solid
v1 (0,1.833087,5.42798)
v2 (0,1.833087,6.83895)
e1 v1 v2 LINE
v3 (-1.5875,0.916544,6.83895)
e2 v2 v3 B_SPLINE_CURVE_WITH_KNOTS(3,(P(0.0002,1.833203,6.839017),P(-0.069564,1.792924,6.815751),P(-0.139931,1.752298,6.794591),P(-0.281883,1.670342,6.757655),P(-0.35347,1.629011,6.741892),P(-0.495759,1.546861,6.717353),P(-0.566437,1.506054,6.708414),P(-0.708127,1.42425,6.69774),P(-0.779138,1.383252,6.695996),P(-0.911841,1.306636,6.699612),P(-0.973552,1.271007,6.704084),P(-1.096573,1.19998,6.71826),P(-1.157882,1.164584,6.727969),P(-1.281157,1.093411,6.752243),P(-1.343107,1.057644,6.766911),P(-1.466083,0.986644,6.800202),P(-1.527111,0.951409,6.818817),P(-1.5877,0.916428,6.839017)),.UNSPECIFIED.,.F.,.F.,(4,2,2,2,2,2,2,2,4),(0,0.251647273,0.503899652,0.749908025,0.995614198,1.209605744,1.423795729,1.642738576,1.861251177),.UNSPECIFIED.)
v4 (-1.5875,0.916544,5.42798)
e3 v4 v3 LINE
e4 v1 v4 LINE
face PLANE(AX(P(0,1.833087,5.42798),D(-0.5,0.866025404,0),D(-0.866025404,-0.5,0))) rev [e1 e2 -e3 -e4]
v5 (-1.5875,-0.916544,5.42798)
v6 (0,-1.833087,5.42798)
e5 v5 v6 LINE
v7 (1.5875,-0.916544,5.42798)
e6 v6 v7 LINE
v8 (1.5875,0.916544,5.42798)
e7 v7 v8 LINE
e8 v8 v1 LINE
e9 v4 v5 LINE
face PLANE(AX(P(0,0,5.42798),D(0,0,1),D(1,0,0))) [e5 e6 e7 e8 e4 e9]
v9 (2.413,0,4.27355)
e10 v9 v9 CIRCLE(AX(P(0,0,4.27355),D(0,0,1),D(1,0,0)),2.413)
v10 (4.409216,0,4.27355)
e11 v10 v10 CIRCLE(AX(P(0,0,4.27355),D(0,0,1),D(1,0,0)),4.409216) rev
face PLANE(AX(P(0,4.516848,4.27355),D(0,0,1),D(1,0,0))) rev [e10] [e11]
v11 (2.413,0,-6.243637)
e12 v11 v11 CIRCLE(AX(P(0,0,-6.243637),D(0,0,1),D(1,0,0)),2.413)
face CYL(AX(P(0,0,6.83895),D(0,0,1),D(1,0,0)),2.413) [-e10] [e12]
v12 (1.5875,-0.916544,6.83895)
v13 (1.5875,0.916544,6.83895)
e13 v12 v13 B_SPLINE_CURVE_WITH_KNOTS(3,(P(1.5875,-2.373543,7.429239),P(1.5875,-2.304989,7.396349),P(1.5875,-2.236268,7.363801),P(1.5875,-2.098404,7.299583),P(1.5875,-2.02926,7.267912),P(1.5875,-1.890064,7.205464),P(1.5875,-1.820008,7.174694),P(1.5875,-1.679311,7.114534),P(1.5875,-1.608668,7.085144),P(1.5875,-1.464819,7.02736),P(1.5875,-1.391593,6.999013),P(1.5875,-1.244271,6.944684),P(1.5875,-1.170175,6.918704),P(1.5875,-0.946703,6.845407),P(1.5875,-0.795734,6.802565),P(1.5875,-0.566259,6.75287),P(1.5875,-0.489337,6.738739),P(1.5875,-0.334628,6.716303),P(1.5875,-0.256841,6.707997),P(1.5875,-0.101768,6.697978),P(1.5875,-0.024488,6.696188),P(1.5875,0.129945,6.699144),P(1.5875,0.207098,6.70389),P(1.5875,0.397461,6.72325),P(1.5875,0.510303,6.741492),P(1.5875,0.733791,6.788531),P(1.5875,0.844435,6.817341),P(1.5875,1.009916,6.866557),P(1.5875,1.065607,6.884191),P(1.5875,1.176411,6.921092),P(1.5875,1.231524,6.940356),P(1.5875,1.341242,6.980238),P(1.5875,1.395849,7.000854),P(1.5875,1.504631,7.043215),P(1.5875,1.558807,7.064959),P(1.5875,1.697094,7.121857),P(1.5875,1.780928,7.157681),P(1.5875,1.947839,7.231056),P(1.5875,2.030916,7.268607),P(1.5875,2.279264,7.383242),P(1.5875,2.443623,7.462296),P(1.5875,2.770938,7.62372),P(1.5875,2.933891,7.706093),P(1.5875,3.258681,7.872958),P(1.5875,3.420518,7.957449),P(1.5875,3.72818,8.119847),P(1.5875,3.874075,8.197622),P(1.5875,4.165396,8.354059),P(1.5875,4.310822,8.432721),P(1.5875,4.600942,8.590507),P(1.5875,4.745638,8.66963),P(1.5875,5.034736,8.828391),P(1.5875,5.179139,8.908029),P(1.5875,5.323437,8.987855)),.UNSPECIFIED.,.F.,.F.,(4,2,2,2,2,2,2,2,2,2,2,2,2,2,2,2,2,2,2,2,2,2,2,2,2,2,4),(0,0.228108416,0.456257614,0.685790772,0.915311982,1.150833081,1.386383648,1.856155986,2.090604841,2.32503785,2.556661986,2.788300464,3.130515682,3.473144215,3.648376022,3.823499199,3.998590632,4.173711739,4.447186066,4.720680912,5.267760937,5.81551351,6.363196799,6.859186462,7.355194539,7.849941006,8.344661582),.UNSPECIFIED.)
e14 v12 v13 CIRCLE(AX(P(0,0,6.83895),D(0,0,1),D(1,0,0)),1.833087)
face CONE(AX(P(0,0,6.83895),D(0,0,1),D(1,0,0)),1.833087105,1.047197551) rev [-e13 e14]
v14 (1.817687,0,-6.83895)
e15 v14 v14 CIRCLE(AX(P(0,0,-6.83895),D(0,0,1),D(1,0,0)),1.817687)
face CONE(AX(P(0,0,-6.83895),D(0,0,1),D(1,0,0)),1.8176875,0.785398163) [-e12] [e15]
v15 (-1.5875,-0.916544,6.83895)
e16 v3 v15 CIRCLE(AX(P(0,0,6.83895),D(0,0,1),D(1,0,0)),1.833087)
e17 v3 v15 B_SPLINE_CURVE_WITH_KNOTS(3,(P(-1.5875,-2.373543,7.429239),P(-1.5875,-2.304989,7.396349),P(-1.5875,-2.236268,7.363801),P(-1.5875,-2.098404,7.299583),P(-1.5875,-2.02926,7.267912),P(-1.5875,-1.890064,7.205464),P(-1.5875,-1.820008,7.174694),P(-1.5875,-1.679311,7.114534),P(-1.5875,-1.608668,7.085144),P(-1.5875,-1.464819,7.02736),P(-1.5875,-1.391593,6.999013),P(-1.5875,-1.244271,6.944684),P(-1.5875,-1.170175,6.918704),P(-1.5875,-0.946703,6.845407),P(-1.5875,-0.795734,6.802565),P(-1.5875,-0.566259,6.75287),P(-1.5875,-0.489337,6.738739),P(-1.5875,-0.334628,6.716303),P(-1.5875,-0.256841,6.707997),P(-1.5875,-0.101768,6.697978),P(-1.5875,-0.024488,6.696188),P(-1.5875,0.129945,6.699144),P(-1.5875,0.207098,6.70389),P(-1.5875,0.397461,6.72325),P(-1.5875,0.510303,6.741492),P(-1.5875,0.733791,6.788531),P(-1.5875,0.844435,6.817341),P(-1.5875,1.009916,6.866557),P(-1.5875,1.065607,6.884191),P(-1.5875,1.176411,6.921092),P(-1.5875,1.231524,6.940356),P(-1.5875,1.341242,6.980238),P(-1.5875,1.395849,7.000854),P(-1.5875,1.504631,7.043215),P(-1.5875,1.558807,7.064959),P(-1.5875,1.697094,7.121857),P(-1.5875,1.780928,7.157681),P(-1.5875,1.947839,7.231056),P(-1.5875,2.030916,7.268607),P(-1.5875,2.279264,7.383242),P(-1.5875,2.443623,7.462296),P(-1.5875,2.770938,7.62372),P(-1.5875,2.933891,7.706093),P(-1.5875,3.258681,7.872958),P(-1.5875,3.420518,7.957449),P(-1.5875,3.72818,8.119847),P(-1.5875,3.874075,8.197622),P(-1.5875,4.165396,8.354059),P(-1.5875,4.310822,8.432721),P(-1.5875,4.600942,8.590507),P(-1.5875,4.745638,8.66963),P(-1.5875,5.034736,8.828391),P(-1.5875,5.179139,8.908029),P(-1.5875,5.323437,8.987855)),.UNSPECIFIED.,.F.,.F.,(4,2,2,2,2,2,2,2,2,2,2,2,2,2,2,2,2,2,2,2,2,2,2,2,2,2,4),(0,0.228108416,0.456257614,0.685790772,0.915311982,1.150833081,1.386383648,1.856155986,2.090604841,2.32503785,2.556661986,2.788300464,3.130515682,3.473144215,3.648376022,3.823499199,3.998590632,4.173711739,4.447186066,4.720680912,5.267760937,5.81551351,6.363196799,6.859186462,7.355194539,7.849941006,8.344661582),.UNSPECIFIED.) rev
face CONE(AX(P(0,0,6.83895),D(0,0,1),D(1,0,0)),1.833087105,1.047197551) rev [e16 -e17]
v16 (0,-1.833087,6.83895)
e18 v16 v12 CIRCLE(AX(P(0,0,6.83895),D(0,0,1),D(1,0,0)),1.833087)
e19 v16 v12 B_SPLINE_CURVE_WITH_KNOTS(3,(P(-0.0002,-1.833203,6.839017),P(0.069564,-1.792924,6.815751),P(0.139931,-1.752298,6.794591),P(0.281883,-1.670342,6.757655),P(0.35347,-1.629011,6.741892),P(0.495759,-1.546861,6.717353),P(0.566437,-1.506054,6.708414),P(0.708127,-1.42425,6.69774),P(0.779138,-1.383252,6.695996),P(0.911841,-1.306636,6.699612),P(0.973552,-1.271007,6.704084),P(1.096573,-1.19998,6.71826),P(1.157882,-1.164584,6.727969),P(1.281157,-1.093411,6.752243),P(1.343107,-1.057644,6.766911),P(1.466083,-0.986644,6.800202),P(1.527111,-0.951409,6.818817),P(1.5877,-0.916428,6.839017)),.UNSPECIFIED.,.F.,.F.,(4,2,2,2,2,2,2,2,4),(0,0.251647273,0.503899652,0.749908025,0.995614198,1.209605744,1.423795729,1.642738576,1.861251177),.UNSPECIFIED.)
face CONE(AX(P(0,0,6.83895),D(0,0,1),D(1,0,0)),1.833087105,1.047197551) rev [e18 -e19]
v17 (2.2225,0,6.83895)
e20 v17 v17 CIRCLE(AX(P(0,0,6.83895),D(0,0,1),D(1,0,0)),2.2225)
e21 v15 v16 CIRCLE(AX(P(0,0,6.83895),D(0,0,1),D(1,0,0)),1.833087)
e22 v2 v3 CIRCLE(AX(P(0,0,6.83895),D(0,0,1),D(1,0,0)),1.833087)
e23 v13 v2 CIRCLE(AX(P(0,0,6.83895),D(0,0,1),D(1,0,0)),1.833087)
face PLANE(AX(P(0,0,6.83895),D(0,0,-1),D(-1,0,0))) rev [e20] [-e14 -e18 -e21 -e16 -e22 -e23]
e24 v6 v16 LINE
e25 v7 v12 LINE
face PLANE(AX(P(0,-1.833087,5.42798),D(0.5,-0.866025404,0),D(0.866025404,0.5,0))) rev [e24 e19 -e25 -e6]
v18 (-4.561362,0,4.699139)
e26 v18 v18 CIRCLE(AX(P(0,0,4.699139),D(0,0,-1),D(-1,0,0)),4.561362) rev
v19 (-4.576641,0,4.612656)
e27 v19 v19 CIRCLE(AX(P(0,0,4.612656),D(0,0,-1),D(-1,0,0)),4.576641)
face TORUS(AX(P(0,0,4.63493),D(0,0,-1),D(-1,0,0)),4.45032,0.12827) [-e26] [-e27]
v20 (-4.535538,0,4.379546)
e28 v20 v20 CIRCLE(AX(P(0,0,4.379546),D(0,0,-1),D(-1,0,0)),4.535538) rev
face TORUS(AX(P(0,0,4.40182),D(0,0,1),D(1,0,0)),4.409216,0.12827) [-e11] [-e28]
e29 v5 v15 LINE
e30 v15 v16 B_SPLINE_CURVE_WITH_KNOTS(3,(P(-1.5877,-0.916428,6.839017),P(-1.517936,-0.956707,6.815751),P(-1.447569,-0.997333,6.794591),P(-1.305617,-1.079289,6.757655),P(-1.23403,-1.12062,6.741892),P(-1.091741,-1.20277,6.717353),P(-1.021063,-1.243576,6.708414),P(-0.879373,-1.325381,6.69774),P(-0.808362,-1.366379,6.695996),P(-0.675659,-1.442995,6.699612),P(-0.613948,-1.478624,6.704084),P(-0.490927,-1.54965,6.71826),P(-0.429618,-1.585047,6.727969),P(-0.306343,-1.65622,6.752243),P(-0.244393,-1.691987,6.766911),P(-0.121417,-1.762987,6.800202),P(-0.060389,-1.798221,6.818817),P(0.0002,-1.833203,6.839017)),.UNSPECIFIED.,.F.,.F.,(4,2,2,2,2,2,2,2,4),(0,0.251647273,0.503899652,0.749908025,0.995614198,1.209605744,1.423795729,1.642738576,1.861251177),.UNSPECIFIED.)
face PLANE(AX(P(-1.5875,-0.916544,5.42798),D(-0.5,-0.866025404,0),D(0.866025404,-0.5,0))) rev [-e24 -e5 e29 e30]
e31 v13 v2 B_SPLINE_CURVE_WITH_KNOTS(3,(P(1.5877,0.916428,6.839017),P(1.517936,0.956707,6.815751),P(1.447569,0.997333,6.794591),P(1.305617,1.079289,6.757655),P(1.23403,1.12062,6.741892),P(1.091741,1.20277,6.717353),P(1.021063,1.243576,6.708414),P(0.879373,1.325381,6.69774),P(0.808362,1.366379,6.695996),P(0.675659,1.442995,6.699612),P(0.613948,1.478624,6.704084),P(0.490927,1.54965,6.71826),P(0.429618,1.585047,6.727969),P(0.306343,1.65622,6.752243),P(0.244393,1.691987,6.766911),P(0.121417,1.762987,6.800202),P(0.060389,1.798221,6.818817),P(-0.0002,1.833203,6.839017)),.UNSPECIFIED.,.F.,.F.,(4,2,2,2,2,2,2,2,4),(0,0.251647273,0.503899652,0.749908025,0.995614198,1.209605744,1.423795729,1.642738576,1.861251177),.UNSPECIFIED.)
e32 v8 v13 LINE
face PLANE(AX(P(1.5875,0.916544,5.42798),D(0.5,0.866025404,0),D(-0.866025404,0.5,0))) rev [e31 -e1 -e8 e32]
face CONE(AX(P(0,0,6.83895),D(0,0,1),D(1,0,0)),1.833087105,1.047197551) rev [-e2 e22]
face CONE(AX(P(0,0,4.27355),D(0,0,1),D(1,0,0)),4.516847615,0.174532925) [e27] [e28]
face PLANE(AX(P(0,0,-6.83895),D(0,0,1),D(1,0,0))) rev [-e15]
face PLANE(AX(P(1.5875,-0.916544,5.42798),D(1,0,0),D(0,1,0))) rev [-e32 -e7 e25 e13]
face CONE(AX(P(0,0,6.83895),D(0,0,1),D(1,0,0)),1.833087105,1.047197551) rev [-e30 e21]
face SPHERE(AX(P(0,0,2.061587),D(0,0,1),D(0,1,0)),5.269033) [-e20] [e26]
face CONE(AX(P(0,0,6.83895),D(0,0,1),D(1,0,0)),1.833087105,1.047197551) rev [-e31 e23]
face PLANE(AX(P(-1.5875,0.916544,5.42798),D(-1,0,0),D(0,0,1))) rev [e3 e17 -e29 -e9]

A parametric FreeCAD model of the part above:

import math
import FreeCAD as App
import Part
import Sketcher
Q = App.Units.Quantity


def edges_at(feature, points):
    """Names of the edges that pass closest to the given points."""
    edges = feature.Shape.Edges
    near = lambda p: min(range(len(edges)), key=lambda i: edges[i].distToShape(Part.Vertex(*p))[0])
    return sorted({f"Edge{near(p) + 1}" for p in points})


def faces_at(feature, points):
    """Names of the faces that lie closest to the given points."""
    faces = feature.Shape.Faces
    near = lambda p: min(range(len(faces)), key=lambda i: faces[i].distToShape(Part.Vertex(*p))[0])
    return sorted({f"Face{near(p) + 1}" for p in points})

doc = App.newDocument("Part")
params = doc.addObject("Spreadsheet::Sheet", "Params")
for row, (alias, value) in enumerate([
    ("revolution_angle", "360 deg"),
    ("pocket1_length", "1.41097 mm"),
    ("pad1_length", "1.41097 mm"),
    ("draft_angle", "60 deg"),
    ("fillet_radius", "0.12827 mm"),
], start=1):
    params.set(f"A{row}", alias)
    params.set(f"B{row}", "=" + value)
    params.setAlias(f"B{row}", alias)

body = doc.addObject("PartDesign::Body", "Body")

sketch1 = body.newObject("Sketcher::SketchObject", "Sketch")
sketch1.AttachmentSupport = (doc.getObject("YZ_Plane"), [""])
sketch1.MapMode = "FlatFace"
sketch1.addGeometry([
    Part.LineSegment(App.Vector(2.22, 6.84, 0), App.Vector(0, 6.84, 0)),
    Part.LineSegment(App.Vector(0, 6.84, 0), App.Vector(0, -6.84, 0)),
    Part.LineSegment(App.Vector(0, -6.84, 0), App.Vector(1.82, -6.84, 0)),
    Part.LineSegment(App.Vector(1.82, -6.84, 0), App.Vector(2.41, -6.24, 0)),
    Part.LineSegment(App.Vector(2.41, -6.24, 0), App.Vector(2.41, 4.27, 0)),
    Part.LineSegment(App.Vector(2.41, 4.27, 0), App.Vector(4.52, 4.27, 0)),
    Part.LineSegment(App.Vector(4.52, 4.27, 0), App.Vector(4.58, 4.66, 0)),
    Part.ArcOfCircle(Part.Circle(App.Vector(0, 2.06, 0), App.Vector(0, 0, 1), 5.27), math.radians(30), math.radians(65)),
], False)
sketch1.addConstraint([
    Sketcher.Constraint("Coincident", 0, 2, 1, 1),
    Sketcher.Constraint("Coincident", 1, 2, 2, 1),
    Sketcher.Constraint("Coincident", 2, 2, 3, 1),
    Sketcher.Constraint("Coincident", 3, 2, 4, 1),
    Sketcher.Constraint("Coincident", 4, 2, 5, 1),
    Sketcher.Constraint("Coincident", 5, 2, 6, 1),
    Sketcher.Constraint("Coincident", 6, 2, 7, 1),
    Sketcher.Constraint("Coincident", 7, 2, 0, 1),
    Sketcher.Constraint("Horizontal", 0),
    Sketcher.Constraint("Vertical", 1),
    Sketcher.Constraint("Horizontal", 2),
    Sketcher.Constraint("Vertical", 4),
    Sketcher.Constraint("Horizontal", 5),
    Sketcher.Constraint("Symmetric", 0, 2, 1, 2, -1, 1),
    Sketcher.Constraint("PointOnObject", 7, 3, -2),
    Sketcher.Constraint("Angle", 3, Q("45 deg")),
    Sketcher.Constraint("Angle", 6, Q("80 deg")),
    Sketcher.Constraint("DistanceX", 0, 2, 0, 1, Q("2.2225 mm")),
    Sketcher.Constraint("DistanceY", 1, 2, 1, 1, Q("13.6779 mm")),
    Sketcher.Constraint("DistanceX", -1, 1, 3, 2, Q("2.413 mm")),
    Sketcher.Constraint("Radius", 7, Q("5.269033 mm")),
    Sketcher.Constraint("Distance", 3, Q("0.841899 mm")),
    Sketcher.Constraint("DistanceX", -1, 1, 6, 2, Q("4.5847 mm")),
    Sketcher.Constraint("DistanceY", 4, 2, 0, 2, Q("2.5654 mm")),
])
revolution = body.newObject("PartDesign::Revolution", "Revolution")
revolution.Profile = sketch1
revolution.ReferenceAxis = (sketch1, ["V_Axis"])
revolution.setExpression("Angle", "Params.revolution_angle")

sketch2 = body.newObject("Sketcher::SketchObject", "Sketch001")
sketch2.AttachmentSupport = (doc.getObject("XY_Plane"), [""])
sketch2.MapMode = "FlatFace"
sketch2.AttachmentOffset = App.Placement(App.Vector(0, 0, 6.83895), App.Rotation())
sketch2.addGeometry([
    Part.LineSegment(App.Vector(-1.6, -0.9, 0), App.Vector(0, -1.8, 0)),
    Part.LineSegment(App.Vector(0, -1.8, 0), App.Vector(1.6, -0.9, 0)),
    Part.LineSegment(App.Vector(1.6, -0.9, 0), App.Vector(1.6, 0.9, 0)),
    Part.LineSegment(App.Vector(1.6, 0.9, 0), App.Vector(0, 1.8, 0)),
    Part.LineSegment(App.Vector(0, 1.8, 0), App.Vector(-1.6, 0.9, 0)),
    Part.LineSegment(App.Vector(-1.6, 0.9, 0), App.Vector(-1.6, -0.9, 0)),
], False)
sketch2.addConstraint([
    Sketcher.Constraint("Coincident", 0, 2, 1, 1),
    Sketcher.Constraint("Coincident", 1, 2, 2, 1),
    Sketcher.Constraint("Coincident", 2, 2, 3, 1),
    Sketcher.Constraint("Coincident", 3, 2, 4, 1),
    Sketcher.Constraint("Coincident", 4, 2, 5, 1),
    Sketcher.Constraint("Coincident", 5, 2, 0, 1),
    Sketcher.Constraint("Vertical", 2),
    Sketcher.Constraint("Vertical", 5),
    Sketcher.Constraint("Symmetric", 0, 2, 3, 2, -1, 1),
    Sketcher.Constraint("Symmetric", 1, 2, 4, 2, -1, 1),
    Sketcher.Constraint("PointOnObject", 0, 2, -2),
    Sketcher.Constraint("Parallel", 0, 3),
    Sketcher.Constraint("Horizontal", 2, 2, 4, 2),
    Sketcher.Constraint("Angle", 0, Q("-30 deg")),
    Sketcher.Constraint("DistanceX", 4, 2, 2, 2, Q("3.175 mm")),
    Sketcher.Constraint("DistanceY", 2, 1, 2, 2, Q("1.833087 mm")),
])
pocket1 = body.newObject("PartDesign::Pocket", "Pocket")
pocket1.Profile = sketch2
pocket1.setExpression("Length", "Params.pocket1_length")
body2 = doc.addObject("PartDesign::Body", "Body001")

sketch3 = body2.newObject("Sketcher::SketchObject", "Sketch002")
sketch3.AttachmentSupport = (doc.getObject("XY_Plane001"), [""])
sketch3.MapMode = "FlatFace"
sketch3.AttachmentOffset = App.Placement(App.Vector(0, 0, 6.83895), App.Rotation())
sketch3.addGeometry(Part.Circle(App.Vector(0, 0, 0), App.Vector(0, 0, 1), 1.8), False)
sketch3.addConstraint([
    Sketcher.Constraint("Coincident", 0, 3, -1, 1),
    Sketcher.Constraint("Diameter", 0, Q("3.666174 mm")),
])
pad1 = body2.newObject("PartDesign::Pad", "Pad")
pad1.Profile = sketch3
pad1.setExpression("Length", "Params.pad1_length")
pad1.Reversed = True
doc.recompute()

datumplane = body2.newObject("PartDesign::Plane", "DatumPlane")
datumplane.AttachmentSupport = (doc.getObject("XY_Plane001"), [""])
datumplane.MapMode = "FlatFace"
datumplane.AttachmentOffset = App.Placement(App.Vector(0, 0, 6.83895), App.Rotation())
draft = body2.newObject("PartDesign::Draft", "Draft")
draft.Base = (pad1, faces_at(pad1, [(-1.833, 0, 6.133)]))
draft.NeutralPlane = (datumplane, [""])
draft.setExpression("Angle", "Params.draft_angle")
draft.Reversed = True
doc.recompute()

boolean = body.newObject("PartDesign::Boolean", "Boolean")
boolean.Type = "Cut"
boolean.addObjects([body2])
doc.recompute()

fillet = body.newObject("PartDesign::Fillet", "Fillet")
fillet.Base = (boolean, edges_at(boolean, [(0, -4.517, 4.274), (0, -4.585, 4.658)]))
fillet.setExpression("Radius", "Params.fillet_radius")

doc.recompute()
